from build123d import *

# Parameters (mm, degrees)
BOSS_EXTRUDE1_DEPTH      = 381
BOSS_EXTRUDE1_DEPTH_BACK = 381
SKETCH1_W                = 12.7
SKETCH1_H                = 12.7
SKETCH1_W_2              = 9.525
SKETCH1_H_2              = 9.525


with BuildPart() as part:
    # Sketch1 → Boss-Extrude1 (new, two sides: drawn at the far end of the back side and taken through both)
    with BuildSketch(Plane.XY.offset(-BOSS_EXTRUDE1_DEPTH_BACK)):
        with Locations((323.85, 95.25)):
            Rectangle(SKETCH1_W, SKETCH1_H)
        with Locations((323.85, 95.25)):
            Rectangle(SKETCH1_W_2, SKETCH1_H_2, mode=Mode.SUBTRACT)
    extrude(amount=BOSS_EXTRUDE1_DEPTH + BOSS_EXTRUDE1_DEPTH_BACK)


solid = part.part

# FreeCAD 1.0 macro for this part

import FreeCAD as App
import Part
import Sketcher

V = App.Vector
Q = App.Units.Quantity

doc = App.newDocument("Part")
params = doc.addObject("Spreadsheet::Sheet", "Params")
for row, (alias, value) in enumerate([
    ("sketch1_width", "0.5 in"),
    ("sketch1_width2", "0.375 in"),
    ("pad1_length", "15 in"),
    ("pad1_length2", "15 in"),
], start=1):
    params.set(f"A{row}", alias)
    params.set(f"B{row}", "=" + value)
    params.setAlias(f"B{row}", alias)

body = doc.addObject("PartDesign::Body", "Body")

sketch1 = doc.addObject("Sketcher::SketchObject", "Sketch")
body.addObject(sketch1)
sketch1.AttachmentSupport = (doc.XY_Plane, [""])
sketch1.MapMode = "FlatFace"
sketch1.addGeometry([
    Part.LineSegment(V(318, 102, 0), V(318, 89, 0)),
    Part.LineSegment(V(318, 89, 0), V(330, 89, 0)),
    Part.LineSegment(V(330, 89, 0), V(330, 102, 0)),
    Part.LineSegment(V(330, 102, 0), V(318, 102, 0)),
    Part.LineSegment(V(329, 90, 0), V(319, 90, 0)),
    Part.LineSegment(V(319, 90, 0), V(319, 100, 0)),
    Part.LineSegment(V(319, 100, 0), V(329, 100, 0)),
    Part.LineSegment(V(329, 100, 0), V(329, 90, 0)),
], False)
sketch1.addConstraint([
    Sketcher.Constraint("Coincident", 0, 2, 1, 1),
    Sketcher.Constraint("Coincident", 1, 2, 2, 1),
    Sketcher.Constraint("Coincident", 2, 2, 3, 1),
    Sketcher.Constraint("Coincident", 3, 2, 0, 1),
    Sketcher.Constraint("Coincident", 4, 2, 5, 1),
    Sketcher.Constraint("Coincident", 5, 2, 6, 1),
    Sketcher.Constraint("Coincident", 6, 2, 7, 1),
    Sketcher.Constraint("Coincident", 7, 2, 4, 1),
    Sketcher.Constraint("Vertical", 0),
    Sketcher.Constraint("Horizontal", 1),
    Sketcher.Constraint("Vertical", 2),
    Sketcher.Constraint("Horizontal", 3),
    Sketcher.Constraint("Horizontal", 4),
    Sketcher.Constraint("Vertical", 5),
    Sketcher.Constraint("Horizontal", 6),
    Sketcher.Constraint("Vertical", 7),
    Sketcher.Constraint("Equal", 3, 0),
    Sketcher.Constraint("Equal", 6, 5),
    Sketcher.Constraint("DistanceX", 1, 1, 1, 2, Q("0.5 in")),
    Sketcher.Constraint("DistanceX", -1, 1, 1, 2, Q("13 in")),
    Sketcher.Constraint("DistanceY", -1, 1, 2, 2, Q("4 in")),
    Sketcher.Constraint("DistanceX", 4, 2, 4, 1, Q("0.375 in")),
    Sketcher.Constraint("DistanceX", -1, 1, 4, 2, Q("12.5625 in")),
    Sketcher.Constraint("DistanceY", -1, 1, 4, 2, Q("3.5625 in")),
])
sketch1.setExpression("Constraints[18]", "Params.sketch1_width")
sketch1.setExpression("Constraints[21]", "Params.sketch1_width2")
pad1 = doc.addObject("PartDesign::Pad", "Pad")
body.addObject(pad1)
pad1.Profile = sketch1
pad1.Type = "TwoLengths"
pad1.setExpression("Length", "Params.pad1_length")
pad1.setExpression("Length2", "Params.pad1_length2")

doc.recompute()
